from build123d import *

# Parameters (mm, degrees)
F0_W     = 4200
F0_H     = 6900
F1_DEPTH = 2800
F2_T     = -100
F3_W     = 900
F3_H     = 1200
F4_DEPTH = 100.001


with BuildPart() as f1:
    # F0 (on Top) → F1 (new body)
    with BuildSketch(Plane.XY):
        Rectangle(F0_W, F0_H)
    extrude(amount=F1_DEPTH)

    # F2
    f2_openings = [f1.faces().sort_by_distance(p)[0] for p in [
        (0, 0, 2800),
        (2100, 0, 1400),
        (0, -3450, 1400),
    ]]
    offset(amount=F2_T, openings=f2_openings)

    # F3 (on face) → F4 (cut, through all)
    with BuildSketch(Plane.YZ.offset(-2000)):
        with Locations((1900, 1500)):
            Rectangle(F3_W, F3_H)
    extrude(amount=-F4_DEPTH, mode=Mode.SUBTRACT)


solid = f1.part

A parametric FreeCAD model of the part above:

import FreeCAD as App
import Part
import Sketcher

V = App.Vector
Q = App.Units.Quantity


def faces_at(feature, points):
    """Names of the faces that lie closest to the given points."""
    faces = feature.Shape.Faces
    near = lambda p: min(range(len(faces)), key=lambda i: faces[i].distToShape(Part.Vertex(*p))[0])
    return sorted({f"Face{near(p) + 1}" for p in points})


def add_polygon(sketch, points):
    """Adds a closed chain of lines whose ends are joined by coincident constraints."""
    first, n = sketch.GeometryCount, len(points)
    for a, b in zip(points, points[1:] + points[:1]):
        sketch.addGeometry(Part.LineSegment(App.Vector(*a, 0), App.Vector(*b, 0)), False)
    for i in range(n):
        sketch.addConstraint(Sketcher.Constraint("Coincident", first + i, 2, first + (i + 1) % n, 1))

doc = App.newDocument("Part")
body = doc.addObject("PartDesign::Body", "Body")

# Sketch on XY plane
sketch1 = doc.addObject("Sketcher::SketchObject", "Sketch")
body.addObject(sketch1)
sketch1.AttachmentSupport = (doc.XY_Plane, [""])
sketch1.MapMode = "FlatFace"
add_polygon(sketch1, [(-2100, 3450), (-2100, -3450), (2100, -3450), (2100, 3450)])  # lines 0-3
sketch1.addConstraint([
    Sketcher.Constraint("Vertical", 0),
    Sketcher.Constraint("Horizontal", 1),
    Sketcher.Constraint("Vertical", 2),
    Sketcher.Constraint("Horizontal", 3),
    Sketcher.Constraint("Symmetric", 0, 2, 2, 2, -1, 1),
    Sketcher.Constraint("DistanceX", 1, 1, 1, 2, Q("4200 mm")),
    Sketcher.Constraint("DistanceY", 0, 2, 0, 1, Q("6900 mm")),
])
pad1 = doc.addObject("PartDesign::Pad", "Pad")
body.addObject(pad1)
pad1.Profile = sketch1
pad1.Length = 2800
doc.recompute()

thickness = doc.addObject("PartDesign::Thickness", "Thickness")
body.addObject(thickness)
thickness.Base = (pad1, faces_at(pad1, [(0, 0, 2800), (2100, 0, 1400), (0, -3450, 1400)]))
thickness.Value = 100
thickness.Reversed = True
thickness.Join = "Arc"

# Sketch on YZ plane
sketch2 = doc.addObject("Sketcher::SketchObject", "Sketch001")
body.addObject(sketch2)
sketch2.AttachmentSupport = (doc.YZ_Plane, [""])
sketch2.MapMode = "FlatFace"
sketch2.AttachmentOffset = App.Placement(V(0, 0, -2000), App.Rotation())
add_polygon(sketch2, [(1450, 2100), (1450, 900), (2350, 900), (2350, 2100)])  # lines 0-3
sketch2.addConstraint([
    Sketcher.Constraint("Vertical", 0),
    Sketcher.Constraint("Horizontal", 1),
    Sketcher.Constraint("Vertical", 2),
    Sketcher.Constraint("Horizontal", 3),
    Sketcher.Constraint("DistanceX", 1, 1, 1, 2, Q("900 mm")),
    Sketcher.Constraint("DistanceY", 0, 2, 0, 1, Q("1200 mm")),
    Sketcher.Constraint("DistanceX", -1, 1, 0, 2, Q("1450 mm")),
    Sketcher.Constraint("DistanceY", -1, 1, 0, 2, Q("900 mm")),
])
pocket1 = doc.addObject("PartDesign::Pocket", "Pocket")
body.addObject(pocket1)
pocket1.Profile = sketch2
pocket1.Type = "ThroughAll"

doc.recompute()
